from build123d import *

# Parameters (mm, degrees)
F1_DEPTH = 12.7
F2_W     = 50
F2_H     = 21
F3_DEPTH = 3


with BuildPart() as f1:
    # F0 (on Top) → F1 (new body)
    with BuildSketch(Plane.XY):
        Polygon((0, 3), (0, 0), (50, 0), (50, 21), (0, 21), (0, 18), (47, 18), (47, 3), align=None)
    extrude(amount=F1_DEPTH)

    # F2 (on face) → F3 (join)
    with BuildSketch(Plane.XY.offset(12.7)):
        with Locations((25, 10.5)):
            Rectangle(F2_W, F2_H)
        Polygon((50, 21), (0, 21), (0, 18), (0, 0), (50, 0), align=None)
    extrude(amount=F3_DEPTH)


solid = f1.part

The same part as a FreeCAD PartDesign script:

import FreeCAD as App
import Part
import Sketcher


def add_polygon(sketch, points):
    """Adds a closed chain of lines whose ends are joined by coincident constraints."""
    first, n = sketch.GeometryCount, len(points)
    for a, b in zip(points, points[1:] + points[:1]):
        sketch.addGeometry(Part.LineSegment(App.Vector(*a, 0), App.Vector(*b, 0)), False)
    for i in range(n):
        sketch.addConstraint(Sketcher.Constraint("Coincident", first + i, 2, first + (i + 1) % n, 1))

doc = App.newDocument("Part")
body = doc.addObject("PartDesign::Body", "Body")

# Sketch on XY plane
sketch1 = body.newObject("Sketcher::SketchObject", "Sketch")
sketch1.AttachmentSupport = (doc.getObject("XY_Plane"), [""])
sketch1.MapMode = "FlatFace"
add_polygon(sketch1, [(0, 3), (0, 0), (50, 0), (50, 21), (0, 21), (0, 18), (47, 18), (47, 3)])  # lines 0-7
sketch1.addConstraint([
    Sketcher.Constraint("Vertical", 0),
    Sketcher.Constraint("Horizontal", 1),
    Sketcher.Constraint("Vertical", 2),
    Sketcher.Constraint("Horizontal", 3),
    Sketcher.Constraint("Vertical", 4),
    Sketcher.Constraint("Horizontal", 5),
    Sketcher.Constraint("Vertical", 6),
    Sketcher.Constraint("Horizontal", 7),
    Sketcher.Constraint("Coincident", 0, 2, -1, 1),
    Sketcher.Constraint("PointOnObject", 3, 2, -2),
    Sketcher.Constraint("Equal", 0, 4),
    Sketcher.Constraint("DistanceX", 1, 1, 1, 2, 50.0),
    Sketcher.Constraint("DistanceX", 5, 1, 5, 2, 47.0),
    Sketcher.Constraint("DistanceY", 0, 2, 0, 1, 3.0),
    Sketcher.Constraint("DistanceY", 2, 1, 2, 2, 21.0),
])
pad1 = body.newObject("PartDesign::Pad", "Pad")
pad1.Profile = sketch1
pad1.Length = 12.7

# Sketch on XY plane
sketch2 = body.newObject("Sketcher::SketchObject", "Sketch001")
sketch2.AttachmentSupport = (doc.getObject("XY_Plane"), [""])
sketch2.MapMode = "FlatFace"
sketch2.AttachmentOffset = App.Placement(App.Vector(0, 0, 12.7), App.Rotation())
add_polygon(sketch2, [(0, 21), (0, 0), (50, 0), (50, 21)])  # lines 0-3
sketch2.addConstraint([
    Sketcher.Constraint("Vertical", 0),
    Sketcher.Constraint("Horizontal", 1),
    Sketcher.Constraint("Vertical", 2),
    Sketcher.Constraint("Horizontal", 3),
    Sketcher.Constraint("Coincident", 0, 2, -1, 1),
    Sketcher.Constraint("DistanceX", 1, 1, 1, 2, 50.0),
    Sketcher.Constraint("DistanceY", 0, 2, 0, 1, 21.0),
])
pad2 = body.newObject("PartDesign::Pad", "Pad001")
pad2.Profile = sketch2
pad2.Length = 3

doc.recompute()
